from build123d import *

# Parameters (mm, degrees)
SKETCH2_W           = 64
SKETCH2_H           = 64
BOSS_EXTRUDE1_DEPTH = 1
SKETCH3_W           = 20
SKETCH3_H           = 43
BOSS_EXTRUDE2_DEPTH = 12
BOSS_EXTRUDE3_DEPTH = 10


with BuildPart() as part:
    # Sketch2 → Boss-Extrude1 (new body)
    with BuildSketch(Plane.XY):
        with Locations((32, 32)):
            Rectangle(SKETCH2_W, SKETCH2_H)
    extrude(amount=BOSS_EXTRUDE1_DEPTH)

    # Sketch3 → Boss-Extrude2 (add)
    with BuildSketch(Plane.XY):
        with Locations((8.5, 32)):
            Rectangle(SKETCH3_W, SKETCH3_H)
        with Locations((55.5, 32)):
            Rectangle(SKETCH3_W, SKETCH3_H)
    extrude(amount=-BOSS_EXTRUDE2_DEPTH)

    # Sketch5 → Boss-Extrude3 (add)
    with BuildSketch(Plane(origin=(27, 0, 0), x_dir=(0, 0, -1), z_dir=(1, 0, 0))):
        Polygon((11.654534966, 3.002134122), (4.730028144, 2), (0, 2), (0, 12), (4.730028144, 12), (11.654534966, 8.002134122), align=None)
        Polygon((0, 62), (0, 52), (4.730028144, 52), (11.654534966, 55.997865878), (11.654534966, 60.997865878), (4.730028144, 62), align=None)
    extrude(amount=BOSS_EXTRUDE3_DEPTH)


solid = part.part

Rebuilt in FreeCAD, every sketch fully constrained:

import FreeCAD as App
import Part
import Sketcher

V = App.Vector
Q = App.Units.Quantity


def add_polygon(sketch, points):
    """Adds a closed chain of lines whose ends are joined by coincident constraints."""
    first, n = sketch.GeometryCount, len(points)
    for a, b in zip(points, points[1:] + points[:1]):
        sketch.addGeometry(Part.LineSegment(App.Vector(*a, 0), App.Vector(*b, 0)), False)
    for i in range(n):
        sketch.addConstraint(Sketcher.Constraint("Coincident", first + i, 2, first + (i + 1) % n, 1))

doc = App.newDocument("Part")
body = doc.addObject("PartDesign::Body", "Body")

# Sketch on XY plane
sketch1 = body.newObject("Sketcher::SketchObject", "Sketch")
sketch1.AttachmentSupport = (doc.getObject("XY_Plane"), [""])
sketch1.MapMode = "FlatFace"
add_polygon(sketch1, [(0, 64), (0, 0), (64, 0), (64, 64)])  # lines 0-3
sketch1.addConstraint([
    Sketcher.Constraint("Vertical", 0),
    Sketcher.Constraint("Horizontal", 1),
    Sketcher.Constraint("Vertical", 2),
    Sketcher.Constraint("Horizontal", 3),
    Sketcher.Constraint("Coincident", 0, 2, -1, 1),
    Sketcher.Constraint("Equal", 3, 0),
    Sketcher.Constraint("DistanceX", 1, 1, 1, 2, Q("64 mm")),
])
pad1 = body.newObject("PartDesign::Pad", "Pad")
pad1.Profile = sketch1
pad1.Length = 1

# Sketch on XY plane
sketch2 = body.newObject("Sketcher::SketchObject", "Sketch001")
sketch2.AttachmentSupport = (doc.getObject("XY_Plane"), [""])
sketch2.MapMode = "FlatFace"
add_polygon(sketch2, [(-2, 54), (-2, 10), (18, 10), (18, 54)])  # lines 0-3
add_polygon(sketch2, [(46, 54), (46, 10), (66, 10), (66, 54)])  # lines 4-7
sketch2.addConstraint([
    Sketcher.Constraint("Vertical", 0),
    Sketcher.Constraint("Horizontal", 1),
    Sketcher.Constraint("Vertical", 2),
    Sketcher.Constraint("Horizontal", 3),
    Sketcher.Constraint("Vertical", 4),
    Sketcher.Constraint("Horizontal", 5),
    Sketcher.Constraint("Vertical", 6),
    Sketcher.Constraint("Horizontal", 7),
    Sketcher.Constraint("Horizontal", 1, 2, 4, 2),
    Sketcher.Constraint("Horizontal", 3, 2, 6, 2),
    Sketcher.Constraint("Equal", 3, 5),
    Sketcher.Constraint("DistanceX", 1, 1, 1, 2, Q("20 mm")),
    Sketcher.Constraint("DistanceY", 0, 2, 0, 1, Q("43 mm")),
    Sketcher.Constraint("DistanceX", 1, 2, 4, 2, Q("27 mm")),
    Sketcher.Constraint("DistanceX", 0, 2, -1, 1, Q("1.5 mm")),
    Sketcher.Constraint("DistanceY", -1, 1, 0, 2, Q("10.5 mm")),
])
pad2 = body.newObject("PartDesign::Pad", "Pad001")
pad2.Profile = sketch2
pad2.Length = 12
pad2.Reversed = True

# Sketch on YZ plane
sketch3 = body.newObject("Sketcher::SketchObject", "Sketch002")
sketch3.AttachmentSupport = (doc.getObject("YZ_Plane"), [""])
sketch3.MapMode = "FlatFace"
sketch3.AttachmentOffset = App.Placement(V(0, 0, 27), App.Rotation())
add_polygon(sketch3, [(2, -4.7), (3, -11.7), (8, -11.7), (12, -4.7), (12, 0), (2, 0)])  # lines 0-5
add_polygon(sketch3, [(62, 0), (52, 0), (52, -4.7), (56, -11.7), (61, -11.7), (62, -4.7)])  # lines 6-11
sketch3.addConstraint([
    Sketcher.Constraint("Horizontal", 1),
    Sketcher.Constraint("Vertical", 3),
    Sketcher.Constraint("Horizontal", 4),
    Sketcher.Constraint("Vertical", 5),
    Sketcher.Constraint("Horizontal", 6),
    Sketcher.Constraint("Vertical", 7),
    Sketcher.Constraint("Horizontal", 9),
    Sketcher.Constraint("Vertical", 11),
    Sketcher.Constraint("PointOnObject", 3, 2, -1),
    Sketcher.Constraint("PointOnObject", 6, 2, -1),
    Sketcher.Constraint("Horizontal", 2, 2, 5, 2),
    Sketcher.Constraint("Horizontal", 5, 2, 7, 2),
    Sketcher.Constraint("Horizontal", 1, 2, 8, 2),
    Sketcher.Constraint("Horizontal", 7, 2, 10, 2),
    Sketcher.Constraint("Equal", 4, 6),
    Sketcher.Constraint("Equal", 1, 9),
    Sketcher.Constraint("Equal", 2, 8),
    Sketcher.Constraint("DistanceX", 1, 1, 1, 2, Q("5 mm")),
    Sketcher.Constraint("DistanceX", 4, 2, 4, 1, Q("10 mm")),
    Sketcher.Constraint("Angle", 2, Q("60 deg")),
    Sketcher.Constraint("DistanceX", -1, 1, 2, 2, Q("12 mm")),
    Sketcher.Constraint("DistanceX", -1, 1, 6, 2, Q("52 mm")),
    Sketcher.Constraint("DistanceY", 3, 1, 3, 2, Q("4.730028 mm")),
    Sketcher.Constraint("Distance", 2, Q("7.995732 mm")),
])
pad3 = body.newObject("PartDesign::Pad", "Pad002")
pad3.Profile = sketch3
pad3.Length = 10

doc.recompute()
